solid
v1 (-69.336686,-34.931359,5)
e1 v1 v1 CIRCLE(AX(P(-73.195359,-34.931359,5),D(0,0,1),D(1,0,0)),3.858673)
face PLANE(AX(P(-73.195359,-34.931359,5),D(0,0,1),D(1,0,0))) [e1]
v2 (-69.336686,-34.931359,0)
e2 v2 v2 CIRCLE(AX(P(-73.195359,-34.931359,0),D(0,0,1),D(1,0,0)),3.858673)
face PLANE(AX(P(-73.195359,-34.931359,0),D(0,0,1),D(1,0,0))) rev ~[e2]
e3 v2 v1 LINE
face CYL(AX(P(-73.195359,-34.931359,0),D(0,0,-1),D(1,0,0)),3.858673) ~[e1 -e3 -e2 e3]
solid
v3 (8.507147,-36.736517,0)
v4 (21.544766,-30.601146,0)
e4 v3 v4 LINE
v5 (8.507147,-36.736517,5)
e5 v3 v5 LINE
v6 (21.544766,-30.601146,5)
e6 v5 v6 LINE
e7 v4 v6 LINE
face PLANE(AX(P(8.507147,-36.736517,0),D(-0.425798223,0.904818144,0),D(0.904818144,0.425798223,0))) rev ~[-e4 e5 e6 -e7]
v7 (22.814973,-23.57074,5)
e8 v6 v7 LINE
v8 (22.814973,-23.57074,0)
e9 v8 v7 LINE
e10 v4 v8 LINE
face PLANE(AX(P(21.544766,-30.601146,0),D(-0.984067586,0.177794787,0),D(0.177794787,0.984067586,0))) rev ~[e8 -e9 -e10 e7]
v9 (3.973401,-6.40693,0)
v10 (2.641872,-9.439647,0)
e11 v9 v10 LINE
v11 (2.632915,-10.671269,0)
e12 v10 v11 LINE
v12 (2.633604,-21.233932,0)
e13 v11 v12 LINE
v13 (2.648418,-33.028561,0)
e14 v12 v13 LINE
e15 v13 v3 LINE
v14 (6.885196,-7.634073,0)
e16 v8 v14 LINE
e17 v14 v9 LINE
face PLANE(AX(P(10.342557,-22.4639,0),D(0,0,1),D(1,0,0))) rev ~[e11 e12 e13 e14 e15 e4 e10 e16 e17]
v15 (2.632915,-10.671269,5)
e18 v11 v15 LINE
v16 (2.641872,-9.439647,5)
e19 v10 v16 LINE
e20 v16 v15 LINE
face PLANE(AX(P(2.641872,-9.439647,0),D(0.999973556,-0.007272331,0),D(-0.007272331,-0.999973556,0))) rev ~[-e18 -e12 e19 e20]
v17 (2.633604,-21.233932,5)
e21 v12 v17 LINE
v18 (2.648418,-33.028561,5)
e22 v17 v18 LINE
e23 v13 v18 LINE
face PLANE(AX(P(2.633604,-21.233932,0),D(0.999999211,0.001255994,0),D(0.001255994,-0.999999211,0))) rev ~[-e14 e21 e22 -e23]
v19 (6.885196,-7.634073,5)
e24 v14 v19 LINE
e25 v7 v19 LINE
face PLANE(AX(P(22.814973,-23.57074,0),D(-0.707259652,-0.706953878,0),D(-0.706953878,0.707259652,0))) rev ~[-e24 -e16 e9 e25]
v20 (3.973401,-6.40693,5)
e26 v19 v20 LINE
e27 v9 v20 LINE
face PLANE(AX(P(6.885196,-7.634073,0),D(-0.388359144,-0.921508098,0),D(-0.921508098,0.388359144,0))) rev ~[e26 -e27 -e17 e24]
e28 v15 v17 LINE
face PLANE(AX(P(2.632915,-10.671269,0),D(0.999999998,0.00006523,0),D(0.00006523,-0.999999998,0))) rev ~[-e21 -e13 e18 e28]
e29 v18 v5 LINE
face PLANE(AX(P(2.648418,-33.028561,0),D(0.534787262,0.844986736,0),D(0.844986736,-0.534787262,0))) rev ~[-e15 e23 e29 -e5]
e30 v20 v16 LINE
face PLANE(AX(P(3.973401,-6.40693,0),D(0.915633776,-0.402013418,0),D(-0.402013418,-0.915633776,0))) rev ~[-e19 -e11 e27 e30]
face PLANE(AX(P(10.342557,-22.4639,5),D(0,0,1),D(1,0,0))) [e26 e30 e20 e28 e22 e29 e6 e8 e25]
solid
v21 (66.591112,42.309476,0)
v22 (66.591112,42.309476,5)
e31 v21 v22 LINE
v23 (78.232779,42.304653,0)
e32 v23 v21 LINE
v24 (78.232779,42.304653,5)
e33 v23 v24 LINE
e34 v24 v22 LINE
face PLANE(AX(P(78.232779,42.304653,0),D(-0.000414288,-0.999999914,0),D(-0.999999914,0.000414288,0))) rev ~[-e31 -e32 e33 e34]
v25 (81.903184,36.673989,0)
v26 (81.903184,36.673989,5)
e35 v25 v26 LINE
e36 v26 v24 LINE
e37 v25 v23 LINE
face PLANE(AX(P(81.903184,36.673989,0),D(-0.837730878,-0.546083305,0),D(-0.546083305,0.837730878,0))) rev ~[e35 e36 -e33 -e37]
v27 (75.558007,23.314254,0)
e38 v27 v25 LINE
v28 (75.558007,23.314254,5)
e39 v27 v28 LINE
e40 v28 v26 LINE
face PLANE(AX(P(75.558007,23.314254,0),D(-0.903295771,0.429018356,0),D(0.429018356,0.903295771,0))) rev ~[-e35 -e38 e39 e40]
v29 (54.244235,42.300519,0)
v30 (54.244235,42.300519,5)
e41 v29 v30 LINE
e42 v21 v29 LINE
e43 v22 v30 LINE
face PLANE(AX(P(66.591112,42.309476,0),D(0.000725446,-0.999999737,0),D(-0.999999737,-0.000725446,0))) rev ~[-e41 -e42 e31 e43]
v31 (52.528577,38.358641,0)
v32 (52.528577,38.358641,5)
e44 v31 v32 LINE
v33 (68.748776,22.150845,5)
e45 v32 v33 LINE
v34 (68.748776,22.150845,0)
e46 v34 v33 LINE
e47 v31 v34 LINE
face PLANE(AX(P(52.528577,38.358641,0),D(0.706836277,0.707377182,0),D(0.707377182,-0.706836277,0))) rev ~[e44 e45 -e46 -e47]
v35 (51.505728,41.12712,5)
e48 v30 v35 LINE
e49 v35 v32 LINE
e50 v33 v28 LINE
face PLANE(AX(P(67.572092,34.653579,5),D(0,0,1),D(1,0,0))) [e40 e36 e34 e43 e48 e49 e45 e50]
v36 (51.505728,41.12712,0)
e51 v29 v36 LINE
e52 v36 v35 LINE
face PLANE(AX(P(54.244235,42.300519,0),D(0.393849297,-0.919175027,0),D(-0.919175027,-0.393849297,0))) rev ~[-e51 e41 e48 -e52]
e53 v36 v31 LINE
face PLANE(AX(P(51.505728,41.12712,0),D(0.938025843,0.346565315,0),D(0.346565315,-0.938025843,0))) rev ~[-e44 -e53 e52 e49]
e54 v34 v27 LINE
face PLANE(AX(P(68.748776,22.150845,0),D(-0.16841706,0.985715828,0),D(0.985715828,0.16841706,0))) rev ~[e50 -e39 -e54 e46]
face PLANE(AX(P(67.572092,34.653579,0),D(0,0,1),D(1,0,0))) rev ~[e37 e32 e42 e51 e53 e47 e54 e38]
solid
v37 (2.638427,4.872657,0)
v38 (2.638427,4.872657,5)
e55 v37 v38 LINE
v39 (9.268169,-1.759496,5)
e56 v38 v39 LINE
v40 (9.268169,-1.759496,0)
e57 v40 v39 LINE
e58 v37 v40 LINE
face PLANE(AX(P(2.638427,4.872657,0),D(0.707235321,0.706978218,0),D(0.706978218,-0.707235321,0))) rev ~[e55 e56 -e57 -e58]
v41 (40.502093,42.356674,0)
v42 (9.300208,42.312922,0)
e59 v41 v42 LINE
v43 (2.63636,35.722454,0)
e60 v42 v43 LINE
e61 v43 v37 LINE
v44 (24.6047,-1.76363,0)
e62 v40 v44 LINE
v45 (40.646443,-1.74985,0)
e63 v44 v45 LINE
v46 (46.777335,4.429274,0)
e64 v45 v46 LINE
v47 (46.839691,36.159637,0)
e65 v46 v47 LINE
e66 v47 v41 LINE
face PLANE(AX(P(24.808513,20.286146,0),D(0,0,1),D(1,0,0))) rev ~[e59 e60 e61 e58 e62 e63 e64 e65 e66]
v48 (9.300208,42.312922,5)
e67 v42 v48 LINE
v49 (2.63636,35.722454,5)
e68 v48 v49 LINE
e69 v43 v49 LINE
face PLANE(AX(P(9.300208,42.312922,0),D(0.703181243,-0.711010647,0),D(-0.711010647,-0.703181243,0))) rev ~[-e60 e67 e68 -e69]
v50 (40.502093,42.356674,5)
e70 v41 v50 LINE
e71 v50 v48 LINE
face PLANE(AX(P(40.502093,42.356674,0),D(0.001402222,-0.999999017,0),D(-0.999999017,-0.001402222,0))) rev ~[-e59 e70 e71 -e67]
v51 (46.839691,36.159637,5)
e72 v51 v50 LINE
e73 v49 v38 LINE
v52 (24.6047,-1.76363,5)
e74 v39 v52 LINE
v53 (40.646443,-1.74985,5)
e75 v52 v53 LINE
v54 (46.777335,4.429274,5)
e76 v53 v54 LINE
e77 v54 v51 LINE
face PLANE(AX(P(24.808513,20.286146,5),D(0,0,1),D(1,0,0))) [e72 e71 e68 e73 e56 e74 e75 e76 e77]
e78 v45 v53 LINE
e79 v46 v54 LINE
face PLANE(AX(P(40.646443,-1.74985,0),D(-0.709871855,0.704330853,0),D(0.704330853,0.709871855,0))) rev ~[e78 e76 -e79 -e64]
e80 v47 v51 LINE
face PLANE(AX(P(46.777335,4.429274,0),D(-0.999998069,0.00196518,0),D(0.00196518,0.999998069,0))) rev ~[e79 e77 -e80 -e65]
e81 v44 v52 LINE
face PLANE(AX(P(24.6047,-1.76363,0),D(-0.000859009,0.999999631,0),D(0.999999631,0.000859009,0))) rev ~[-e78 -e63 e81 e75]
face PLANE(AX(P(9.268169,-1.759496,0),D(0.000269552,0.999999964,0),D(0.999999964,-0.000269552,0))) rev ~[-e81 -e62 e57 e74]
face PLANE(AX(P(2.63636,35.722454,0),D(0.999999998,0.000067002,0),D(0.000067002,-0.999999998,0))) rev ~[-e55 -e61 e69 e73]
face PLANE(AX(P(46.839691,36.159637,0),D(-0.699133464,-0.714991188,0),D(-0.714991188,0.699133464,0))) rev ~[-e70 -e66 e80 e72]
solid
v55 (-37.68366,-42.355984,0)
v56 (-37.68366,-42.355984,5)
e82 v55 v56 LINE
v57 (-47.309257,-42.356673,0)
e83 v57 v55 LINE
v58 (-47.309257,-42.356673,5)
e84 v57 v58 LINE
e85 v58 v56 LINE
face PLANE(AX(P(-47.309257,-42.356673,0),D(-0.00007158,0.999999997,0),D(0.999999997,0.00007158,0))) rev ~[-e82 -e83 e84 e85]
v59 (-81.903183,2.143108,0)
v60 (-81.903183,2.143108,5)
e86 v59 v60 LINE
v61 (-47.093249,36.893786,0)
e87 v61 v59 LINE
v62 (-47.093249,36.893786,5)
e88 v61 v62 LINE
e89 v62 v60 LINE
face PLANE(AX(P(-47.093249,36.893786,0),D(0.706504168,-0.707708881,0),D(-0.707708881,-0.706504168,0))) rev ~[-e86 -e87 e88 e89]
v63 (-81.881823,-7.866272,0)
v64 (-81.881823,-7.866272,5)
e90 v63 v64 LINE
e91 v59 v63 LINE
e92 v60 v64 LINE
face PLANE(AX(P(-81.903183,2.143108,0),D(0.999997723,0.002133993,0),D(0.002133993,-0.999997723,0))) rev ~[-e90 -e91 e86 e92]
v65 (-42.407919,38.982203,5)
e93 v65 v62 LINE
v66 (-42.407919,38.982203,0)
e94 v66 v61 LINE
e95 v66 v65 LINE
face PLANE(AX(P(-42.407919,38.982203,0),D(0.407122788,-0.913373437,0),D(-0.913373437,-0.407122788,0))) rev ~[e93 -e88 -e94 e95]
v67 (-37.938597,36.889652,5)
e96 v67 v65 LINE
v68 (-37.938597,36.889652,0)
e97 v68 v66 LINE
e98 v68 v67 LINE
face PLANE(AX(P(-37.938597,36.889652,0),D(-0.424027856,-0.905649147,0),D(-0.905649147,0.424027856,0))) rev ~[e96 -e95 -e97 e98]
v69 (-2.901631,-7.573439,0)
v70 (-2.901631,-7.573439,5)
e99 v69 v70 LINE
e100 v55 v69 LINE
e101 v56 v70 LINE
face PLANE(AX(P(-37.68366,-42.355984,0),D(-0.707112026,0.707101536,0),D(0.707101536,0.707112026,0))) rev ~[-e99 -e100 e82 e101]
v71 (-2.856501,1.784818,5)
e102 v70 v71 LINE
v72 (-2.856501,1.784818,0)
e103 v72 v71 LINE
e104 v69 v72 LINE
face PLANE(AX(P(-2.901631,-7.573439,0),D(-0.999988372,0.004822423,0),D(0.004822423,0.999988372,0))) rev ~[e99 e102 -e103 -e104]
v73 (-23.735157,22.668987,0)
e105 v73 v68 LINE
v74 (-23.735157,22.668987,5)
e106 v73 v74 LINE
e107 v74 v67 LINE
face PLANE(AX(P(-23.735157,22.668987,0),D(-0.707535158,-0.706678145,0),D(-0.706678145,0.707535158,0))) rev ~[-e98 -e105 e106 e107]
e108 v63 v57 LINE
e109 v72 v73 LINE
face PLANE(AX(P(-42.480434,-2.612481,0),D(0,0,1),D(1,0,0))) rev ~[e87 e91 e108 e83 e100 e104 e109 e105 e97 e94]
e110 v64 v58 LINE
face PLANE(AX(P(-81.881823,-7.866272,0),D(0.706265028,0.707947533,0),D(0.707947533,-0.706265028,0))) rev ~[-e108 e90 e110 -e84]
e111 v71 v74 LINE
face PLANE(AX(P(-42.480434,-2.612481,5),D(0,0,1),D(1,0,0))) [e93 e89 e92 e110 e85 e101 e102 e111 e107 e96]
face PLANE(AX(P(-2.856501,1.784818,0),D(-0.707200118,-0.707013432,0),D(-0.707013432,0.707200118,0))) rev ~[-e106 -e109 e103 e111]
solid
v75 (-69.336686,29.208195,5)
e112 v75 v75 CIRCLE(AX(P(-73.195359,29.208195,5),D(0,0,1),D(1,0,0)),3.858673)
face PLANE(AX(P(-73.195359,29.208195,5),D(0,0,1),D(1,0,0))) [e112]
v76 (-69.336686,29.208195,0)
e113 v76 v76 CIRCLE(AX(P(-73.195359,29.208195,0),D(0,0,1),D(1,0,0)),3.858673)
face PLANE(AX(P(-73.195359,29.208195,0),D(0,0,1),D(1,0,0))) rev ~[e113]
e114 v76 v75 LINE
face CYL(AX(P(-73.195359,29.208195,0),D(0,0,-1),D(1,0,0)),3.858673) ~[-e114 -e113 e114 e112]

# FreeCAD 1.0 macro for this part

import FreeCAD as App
import Part
import Sketcher
from FreeCAD import Vector
Q = App.Units.Quantity


def add_polygon(sketch, points):
    """Adds a closed chain of lines whose ends are joined by coincident constraints."""
    first, n = sketch.GeometryCount, len(points)
    for a, b in zip(points, points[1:] + points[:1]):
        sketch.addGeometry(Part.LineSegment(App.Vector(*a, 0), App.Vector(*b, 0)), False)
    for i in range(n):
        sketch.addConstraint(Sketcher.Constraint("Coincident", first + i, 2, first + (i + 1) % n, 1))

doc = App.newDocument("Part")
params = doc.addObject("Spreadsheet::Sheet", "Params")
for row, (alias, value) in enumerate([
    ("pad1_length", "5 mm"),
], start=1):
    params.set(f"A{row}", alias)
    params.set(f"B{row}", "=" + value)
    params.setAlias(f"B{row}", alias)

body = doc.addObject("PartDesign::Body", "Body")
body.AllowCompound = True

sketch1 = doc.addObject("Sketcher::SketchObject", "Sketch")
body.addObject(sketch1)
sketch1.AttachmentSupport = (doc.XY_Plane, [""])
sketch1.MapMode = "FlatFace"
add_polygon(sketch1, [(-37.938597, 36.889652), (-42.407919, 38.982203), (-47.093249, 36.893786), (-81.903183, 2.143108), (-81.881823, -7.866272), (-47.309257, -42.356673), (-37.68366, -42.355984), (-2.901631, -7.573439), (-2.856501, 1.784818), (-23.735157, 22.668987)])
add_polygon(sketch1, [(9.268169, -1.759496), (24.6047, -1.76363), (40.646443, -1.74985), (46.777335, 4.429274), (46.839691, 36.159637), (40.502093, 42.356674), (9.300208, 42.312922), (2.63636, 35.722454), (2.638427, 4.872657)])
add_polygon(sketch1, [(2.632915, -10.671269), (2.633604, -21.233932), (2.648418, -33.028561), (8.507147, -36.736517), (21.544766, -30.601146), (22.814973, -23.57074), (6.885196, -7.634073), (3.973401, -6.40693), (2.641872, -9.439647)])
add_polygon(sketch1, [(78.232779, 42.304653), (66.591112, 42.309476), (54.244235, 42.300519), (51.505728, 41.12712), (52.528577, 38.358641), (68.748776, 22.150845), (75.558007, 23.314254), (81.903184, 36.673989)])
sketch1.addGeometry(Part.Circle(Vector(-73.195359, 29.208195, 0), Vector(0, 0, 1), 3.858673), False)
sketch1.addGeometry(Part.Circle(Vector(-73.195359, -34.931359, 0), Vector(0, 0, 1), 3.858673), False)
sketch1.addConstraint([
    Sketcher.Constraint("Equal", 36, 37),
    Sketcher.Constraint("Parallel", 17, 19),
    Sketcher.Constraint("Vertical", 36, 3, 37, 3),
    Sketcher.Constraint("Diameter", 36, Q("7.717346 mm")),
    Sketcher.Constraint("Distance", 1, Q("5.129698 mm")),
    Sketcher.Constraint("Distance", 2, Q("49.186798 mm")),
    Sketcher.Constraint("DistanceX", 7, 2, -1, 1, Q("2.856501 mm")),
    Sketcher.Constraint("DistanceX", -1, 1, 10, 2, Q("24.6047 mm")),
    Sketcher.Constraint("DistanceX", -1, 1, 25, 2, Q("3.973401 mm")),
    Sketcher.Constraint("DistanceX", 37, 3, 4, 2, Q("25.886102 mm")),
    Sketcher.Constraint("DistanceY", 4, 2, 3, 2, Q("34.490401 mm")),
    Sketcher.Constraint("DistanceX", 37, 3, 5, 2, Q("35.511699 mm")),
    Sketcher.Constraint("DistanceY", 8, 2, 1, 2, Q("14.224799 mm")),
    Sketcher.Constraint("DistanceX", 36, 3, 8, 2, Q("49.460202 mm")),
    Sketcher.Constraint("DistanceX", 8, 2, 11, 2, Q("64.3816 mm")),
    Sketcher.Constraint("DistanceY", 12, 2, 14, 2, Q("37.9274 mm")),
    Sketcher.Constraint("DistanceX", 6, 2, 18, 2, Q("12.1698 mm")),
    Sketcher.Constraint("DistanceY", 19, 2, 10, 2, Q("19.470302 mm")),
    Sketcher.Constraint("DistanceY", 28, 2, 14, 2, Q("0.047198 mm")),
    Sketcher.Constraint("DistanceX", 12, 2, 29, 2, Q("7.4669 mm")),
    Sketcher.Constraint("DistanceY", 30, 2, 29, 2, Q("1.173399 mm")),
    Sketcher.Constraint("DistanceX", 31, 2, 32, 2, Q("16.220199 mm")),
    Sketcher.Constraint("DistanceY", 33, 2, 35, 2, Q("18.990399 mm")),
    Sketcher.Constraint("Distance", 9, Q("20.098881 mm")),
    Sketcher.Constraint("Distance", 10, Q("15.336532 mm")),
    Sketcher.Constraint("Distance", 11, Q("16.041749 mm")),
    Sketcher.Constraint("Distance", 16, Q("9.37236 mm")),
    Sketcher.Constraint("Distance", 20, Q("11.794638 mm")),
    Sketcher.Constraint("Distance", 23, Q("7.144231 mm")),
    Sketcher.Constraint("Distance", 24, Q("22.532979 mm")),
    Sketcher.Constraint("Distance", 26, Q("3.312151 mm")),
    Sketcher.Constraint("Distance", 29, Q("12.34688 mm")),
    Sketcher.Constraint("Distance", 30, Q("2.97931 mm")),
    Sketcher.Constraint("Distance", 31, Q("2.951389 mm")),
    Sketcher.Constraint("Distance", 34, Q("14.78999 mm")),
    Sketcher.Constraint("DistanceY", 37, 3, -1, 1, Q("34.931359 mm")),
    Sketcher.Constraint("DistanceX", 0, 2, -1, 1, Q("42.407919 mm")),
    Sketcher.Constraint("DistanceX", 1, 2, -1, 1, Q("47.093249 mm")),
    Sketcher.Constraint("DistanceY", 6, 2, -1, 1, Q("7.573439 mm")),
    Sketcher.Constraint("DistanceY", -1, 1, 9, 2, Q("36.889652 mm")),
    Sketcher.Constraint("DistanceY", 10, 2, -1, 1, Q("1.76363 mm")),
    Sketcher.Constraint("DistanceY", 11, 2, -1, 1, Q("1.74985 mm")),
    Sketcher.Constraint("DistanceX", -1, 1, 13, 2, Q("46.839691 mm")),
    Sketcher.Constraint("DistanceX", -1, 1, 16, 2, Q("2.63636 mm")),
    Sketcher.Constraint("DistanceY", 23, 2, -1, 1, Q("23.57074 mm")),
    Sketcher.Constraint("DistanceY", 25, 2, -1, 1, Q("6.40693 mm")),
    Sketcher.Constraint("DistanceY", 27, 2, -1, 1, Q("10.671269 mm")),
    Sketcher.Constraint("DistanceX", -1, 1, 28, 2, Q("66.591112 mm")),
    Sketcher.Constraint("DistanceY", -1, 1, 29, 2, Q("42.300519 mm")),
    Sketcher.Constraint("DistanceY", -1, 1, 31, 2, Q("38.358641 mm")),
    Sketcher.Constraint("DistanceY", -1, 1, 34, 2, Q("36.673989 mm")),
    Sketcher.Constraint("DistanceX", -1, 1, 35, 2, Q("78.232779 mm")),
    Sketcher.Constraint("DistanceY", 37, 3, 0, 2, Q("73.913562 mm")),
    Sketcher.Constraint("DistanceY", 36, 3, 1, 2, Q("7.685591 mm")),
    Sketcher.Constraint("DistanceX", 2, 2, 3, 2, Q("0.02136 mm")),
    Sketcher.Constraint("DistanceY", 3, 2, 2, 2, Q("10.00938 mm")),
    Sketcher.Constraint("DistanceY", 4, 2, 36, 3, Q("71.564868 mm")),
    Sketcher.Constraint("DistanceY", 4, 2, 5, 2, Q("0.000689 mm")),
    Sketcher.Constraint("DistanceY", 4, 2, 7, 2, Q("44.141491 mm")),
    Sketcher.Constraint("DistanceY", 7, 2, 13, 2, Q("34.374819 mm")),
    Sketcher.Constraint("DistanceX", 14, 2, 12, 2, Q("6.275242 mm")),
    Sketcher.Constraint("DistanceY", 15, 2, 14, 2, Q("0.043752 mm")),
    Sketcher.Constraint("DistanceX", 7, 2, 15, 2, Q("12.156709 mm")),
    Sketcher.Constraint("DistanceY", 7, 2, 17, 2, Q("3.087839 mm")),
    Sketcher.Constraint("DistanceX", 6, 2, 20, 2, Q("5.550049 mm")),
    Sketcher.Constraint("DistanceX", 17, 2, 20, 2, Q("0.009991 mm")),
    Sketcher.Constraint("DistanceX", 20, 2, 21, 2, Q("5.858729 mm")),
    Sketcher.Constraint("DistanceY", 21, 2, 18, 2, Q("34.977021 mm")),
    Sketcher.Constraint("DistanceX", 21, 2, 22, 2, Q("13.037619 mm")),
    Sketcher.Constraint("DistanceY", 21, 2, 22, 2, Q("6.135371 mm")),
    Sketcher.Constraint("DistanceX", 19, 2, 22, 2, Q("18.911162 mm")),
    Sketcher.Constraint("DistanceX", 19, 2, 23, 2, Q("20.181369 mm")),
    Sketcher.Constraint("DistanceX", 17, 2, 24, 2, Q("4.246769 mm")),
    Sketcher.Constraint("DistanceX", 26, 2, 25, 2, Q("1.331529 mm")),
    Sketcher.Constraint("DistanceY", 13, 2, 28, 2, Q("6.149839 mm")),
    Sketcher.Constraint("DistanceY", 32, 2, 28, 2, Q("20.158631 mm")),
    Sketcher.Constraint("DistanceX", 32, 2, 33, 2, Q("6.809231 mm")),
    Sketcher.Constraint("DistanceY", 32, 2, 33, 2, Q("1.163409 mm")),
])
pad1 = doc.addObject("PartDesign::Pad", "Pad")
body.addObject(pad1)
pad1.Profile = sketch1
pad1.setExpression("Length", "Params.pad1_length")

doc.recompute()
